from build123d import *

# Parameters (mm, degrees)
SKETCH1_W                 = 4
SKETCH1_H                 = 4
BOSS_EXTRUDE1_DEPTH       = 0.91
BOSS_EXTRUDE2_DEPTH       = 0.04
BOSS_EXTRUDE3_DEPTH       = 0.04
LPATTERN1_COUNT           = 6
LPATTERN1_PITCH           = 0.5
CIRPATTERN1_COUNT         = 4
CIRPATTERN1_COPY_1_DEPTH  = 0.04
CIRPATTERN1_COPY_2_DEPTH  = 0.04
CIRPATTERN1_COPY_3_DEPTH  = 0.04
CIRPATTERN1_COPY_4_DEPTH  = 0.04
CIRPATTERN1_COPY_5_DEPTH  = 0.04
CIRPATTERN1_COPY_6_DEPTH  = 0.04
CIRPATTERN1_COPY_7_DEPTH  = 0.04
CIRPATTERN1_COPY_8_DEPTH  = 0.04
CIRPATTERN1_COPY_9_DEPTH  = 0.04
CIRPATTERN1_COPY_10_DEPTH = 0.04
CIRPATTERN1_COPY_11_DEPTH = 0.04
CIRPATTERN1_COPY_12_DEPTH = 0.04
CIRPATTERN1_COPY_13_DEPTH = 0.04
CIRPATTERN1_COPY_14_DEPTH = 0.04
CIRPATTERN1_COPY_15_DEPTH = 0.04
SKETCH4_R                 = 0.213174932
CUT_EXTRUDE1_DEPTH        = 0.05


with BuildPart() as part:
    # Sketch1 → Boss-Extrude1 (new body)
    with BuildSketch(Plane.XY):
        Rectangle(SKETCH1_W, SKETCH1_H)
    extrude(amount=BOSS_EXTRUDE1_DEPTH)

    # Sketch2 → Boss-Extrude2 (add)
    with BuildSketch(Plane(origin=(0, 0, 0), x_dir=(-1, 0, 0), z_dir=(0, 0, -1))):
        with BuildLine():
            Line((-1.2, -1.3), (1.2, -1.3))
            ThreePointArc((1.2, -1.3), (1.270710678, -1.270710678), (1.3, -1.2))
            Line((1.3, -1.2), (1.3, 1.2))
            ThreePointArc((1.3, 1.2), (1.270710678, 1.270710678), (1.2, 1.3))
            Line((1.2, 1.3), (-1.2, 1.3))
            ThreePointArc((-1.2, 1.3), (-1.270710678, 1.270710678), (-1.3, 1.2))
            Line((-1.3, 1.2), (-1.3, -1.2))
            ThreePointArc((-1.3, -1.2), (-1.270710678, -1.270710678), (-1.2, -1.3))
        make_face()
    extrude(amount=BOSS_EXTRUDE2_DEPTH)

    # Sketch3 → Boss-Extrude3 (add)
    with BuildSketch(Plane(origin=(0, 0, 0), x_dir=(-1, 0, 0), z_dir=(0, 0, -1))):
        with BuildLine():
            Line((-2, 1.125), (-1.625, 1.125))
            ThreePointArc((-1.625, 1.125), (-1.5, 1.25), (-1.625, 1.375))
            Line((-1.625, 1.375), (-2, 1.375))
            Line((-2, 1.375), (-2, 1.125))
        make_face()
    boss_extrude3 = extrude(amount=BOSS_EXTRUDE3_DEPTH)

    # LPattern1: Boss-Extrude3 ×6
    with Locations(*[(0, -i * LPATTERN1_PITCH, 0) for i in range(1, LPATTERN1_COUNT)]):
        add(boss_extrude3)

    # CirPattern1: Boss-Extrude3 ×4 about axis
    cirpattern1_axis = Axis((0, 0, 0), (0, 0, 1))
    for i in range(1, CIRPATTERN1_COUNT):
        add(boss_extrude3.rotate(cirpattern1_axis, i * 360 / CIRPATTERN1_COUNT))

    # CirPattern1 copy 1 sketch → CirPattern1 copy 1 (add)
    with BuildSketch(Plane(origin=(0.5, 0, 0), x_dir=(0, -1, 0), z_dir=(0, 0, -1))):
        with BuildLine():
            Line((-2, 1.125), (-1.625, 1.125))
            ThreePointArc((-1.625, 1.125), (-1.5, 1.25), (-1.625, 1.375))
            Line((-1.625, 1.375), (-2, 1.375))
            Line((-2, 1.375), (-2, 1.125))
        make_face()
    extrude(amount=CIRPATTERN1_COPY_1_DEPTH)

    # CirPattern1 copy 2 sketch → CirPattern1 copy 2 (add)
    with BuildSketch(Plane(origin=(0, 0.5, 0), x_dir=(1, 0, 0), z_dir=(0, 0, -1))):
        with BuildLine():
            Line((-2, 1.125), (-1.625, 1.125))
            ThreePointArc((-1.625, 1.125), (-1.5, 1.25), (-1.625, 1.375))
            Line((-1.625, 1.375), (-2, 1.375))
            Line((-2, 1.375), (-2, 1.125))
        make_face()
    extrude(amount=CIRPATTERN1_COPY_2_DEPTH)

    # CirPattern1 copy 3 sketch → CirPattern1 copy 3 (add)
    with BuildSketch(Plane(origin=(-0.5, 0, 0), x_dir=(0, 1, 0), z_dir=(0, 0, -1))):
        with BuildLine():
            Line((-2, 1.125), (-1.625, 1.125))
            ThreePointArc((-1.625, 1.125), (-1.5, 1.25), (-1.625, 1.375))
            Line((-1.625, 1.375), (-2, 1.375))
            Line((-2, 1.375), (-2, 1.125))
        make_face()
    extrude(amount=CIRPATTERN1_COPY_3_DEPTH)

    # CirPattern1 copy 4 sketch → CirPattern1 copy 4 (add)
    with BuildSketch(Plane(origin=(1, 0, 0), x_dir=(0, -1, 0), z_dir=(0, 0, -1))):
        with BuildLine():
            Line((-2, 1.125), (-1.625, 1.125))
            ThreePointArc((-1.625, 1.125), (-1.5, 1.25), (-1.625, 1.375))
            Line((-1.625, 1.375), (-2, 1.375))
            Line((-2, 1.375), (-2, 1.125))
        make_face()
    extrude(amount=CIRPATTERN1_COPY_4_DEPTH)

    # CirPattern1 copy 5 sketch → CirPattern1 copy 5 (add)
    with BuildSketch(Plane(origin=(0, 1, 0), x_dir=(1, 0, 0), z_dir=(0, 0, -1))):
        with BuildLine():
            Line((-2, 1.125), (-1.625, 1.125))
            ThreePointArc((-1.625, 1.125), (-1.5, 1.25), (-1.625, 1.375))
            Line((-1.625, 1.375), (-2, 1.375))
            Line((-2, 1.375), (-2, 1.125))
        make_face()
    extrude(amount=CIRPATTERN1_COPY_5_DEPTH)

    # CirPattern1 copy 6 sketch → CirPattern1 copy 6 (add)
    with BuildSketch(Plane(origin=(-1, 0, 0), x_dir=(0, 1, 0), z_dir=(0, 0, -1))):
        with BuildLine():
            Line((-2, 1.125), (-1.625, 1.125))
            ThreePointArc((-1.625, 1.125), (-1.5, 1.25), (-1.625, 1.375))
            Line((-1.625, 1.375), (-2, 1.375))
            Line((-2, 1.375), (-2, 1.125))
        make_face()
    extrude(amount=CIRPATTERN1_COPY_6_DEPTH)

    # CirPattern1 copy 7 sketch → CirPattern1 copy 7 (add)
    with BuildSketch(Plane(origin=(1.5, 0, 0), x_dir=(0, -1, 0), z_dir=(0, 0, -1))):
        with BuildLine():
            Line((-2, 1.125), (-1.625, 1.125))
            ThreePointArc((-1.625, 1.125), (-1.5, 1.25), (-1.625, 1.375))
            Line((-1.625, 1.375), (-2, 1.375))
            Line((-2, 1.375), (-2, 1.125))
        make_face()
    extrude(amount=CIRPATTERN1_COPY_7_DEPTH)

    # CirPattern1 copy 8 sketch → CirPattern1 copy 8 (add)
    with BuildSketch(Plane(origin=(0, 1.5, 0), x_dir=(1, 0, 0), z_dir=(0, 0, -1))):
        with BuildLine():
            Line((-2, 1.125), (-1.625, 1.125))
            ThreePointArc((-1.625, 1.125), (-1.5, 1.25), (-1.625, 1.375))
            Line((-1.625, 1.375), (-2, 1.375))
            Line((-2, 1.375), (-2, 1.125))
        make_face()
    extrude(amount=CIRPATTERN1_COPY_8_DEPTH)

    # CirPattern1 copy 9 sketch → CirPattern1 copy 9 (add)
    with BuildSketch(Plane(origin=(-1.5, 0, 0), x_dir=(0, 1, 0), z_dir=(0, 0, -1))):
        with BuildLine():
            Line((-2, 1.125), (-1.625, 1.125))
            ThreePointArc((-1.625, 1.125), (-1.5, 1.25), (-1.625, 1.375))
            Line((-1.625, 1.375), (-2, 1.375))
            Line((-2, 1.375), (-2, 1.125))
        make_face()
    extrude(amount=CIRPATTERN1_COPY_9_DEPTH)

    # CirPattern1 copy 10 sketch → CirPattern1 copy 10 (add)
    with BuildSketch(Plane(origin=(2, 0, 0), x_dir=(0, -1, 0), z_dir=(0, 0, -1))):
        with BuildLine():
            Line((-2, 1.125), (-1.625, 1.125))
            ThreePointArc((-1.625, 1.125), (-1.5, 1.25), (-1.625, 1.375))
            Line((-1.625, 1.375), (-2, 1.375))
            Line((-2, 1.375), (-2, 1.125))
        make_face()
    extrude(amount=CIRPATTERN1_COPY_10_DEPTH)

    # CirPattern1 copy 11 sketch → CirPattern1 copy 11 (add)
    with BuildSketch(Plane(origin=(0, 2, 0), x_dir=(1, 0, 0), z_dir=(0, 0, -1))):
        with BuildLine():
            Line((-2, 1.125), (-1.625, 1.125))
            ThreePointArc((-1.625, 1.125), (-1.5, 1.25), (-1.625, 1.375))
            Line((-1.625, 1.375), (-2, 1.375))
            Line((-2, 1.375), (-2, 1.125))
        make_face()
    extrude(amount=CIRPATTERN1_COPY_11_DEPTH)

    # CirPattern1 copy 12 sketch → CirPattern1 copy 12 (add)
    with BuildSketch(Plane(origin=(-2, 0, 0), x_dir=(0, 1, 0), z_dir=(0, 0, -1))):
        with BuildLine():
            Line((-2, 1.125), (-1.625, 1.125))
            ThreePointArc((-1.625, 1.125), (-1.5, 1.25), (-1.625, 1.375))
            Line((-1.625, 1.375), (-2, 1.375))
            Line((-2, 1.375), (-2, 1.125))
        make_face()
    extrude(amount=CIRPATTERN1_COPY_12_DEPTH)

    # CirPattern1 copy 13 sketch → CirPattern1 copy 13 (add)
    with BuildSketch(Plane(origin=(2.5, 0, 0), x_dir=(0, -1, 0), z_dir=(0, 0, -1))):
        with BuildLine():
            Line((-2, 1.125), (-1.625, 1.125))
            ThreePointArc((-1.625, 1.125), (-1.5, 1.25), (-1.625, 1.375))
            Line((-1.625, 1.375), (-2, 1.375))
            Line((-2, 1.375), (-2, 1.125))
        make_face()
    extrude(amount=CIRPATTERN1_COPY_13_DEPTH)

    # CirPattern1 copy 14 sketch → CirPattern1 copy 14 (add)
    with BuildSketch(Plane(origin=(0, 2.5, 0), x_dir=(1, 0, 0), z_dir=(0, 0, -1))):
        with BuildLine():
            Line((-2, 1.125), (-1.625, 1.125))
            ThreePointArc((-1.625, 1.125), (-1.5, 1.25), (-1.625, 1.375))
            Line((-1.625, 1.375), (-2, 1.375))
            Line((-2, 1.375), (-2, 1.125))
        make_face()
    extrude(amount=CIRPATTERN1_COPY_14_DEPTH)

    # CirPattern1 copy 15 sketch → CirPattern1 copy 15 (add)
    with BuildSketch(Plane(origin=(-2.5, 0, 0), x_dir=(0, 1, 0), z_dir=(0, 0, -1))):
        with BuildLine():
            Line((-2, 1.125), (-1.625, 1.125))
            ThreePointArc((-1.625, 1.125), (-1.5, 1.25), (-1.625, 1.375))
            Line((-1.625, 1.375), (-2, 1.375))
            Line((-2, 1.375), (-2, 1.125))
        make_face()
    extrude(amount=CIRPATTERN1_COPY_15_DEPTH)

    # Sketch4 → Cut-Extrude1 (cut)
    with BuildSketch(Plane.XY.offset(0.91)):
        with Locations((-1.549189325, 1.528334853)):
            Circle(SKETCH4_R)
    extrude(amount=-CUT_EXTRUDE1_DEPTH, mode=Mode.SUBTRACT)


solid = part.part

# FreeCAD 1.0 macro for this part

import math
import FreeCAD as App
import Part
import Sketcher

V = App.Vector


def add_polygon(sketch, points):
    """Adds a closed chain of lines whose ends are joined by coincident constraints."""
    first, n = sketch.GeometryCount, len(points)
    for a, b in zip(points, points[1:] + points[:1]):
        sketch.addGeometry(Part.LineSegment(App.Vector(*a, 0), App.Vector(*b, 0)), False)
    for i in range(n):
        sketch.addConstraint(Sketcher.Constraint("Coincident", first + i, 2, first + (i + 1) % n, 1))

doc = App.newDocument("Part")
params = doc.addObject("Spreadsheet::Sheet", "Params")
for row, (alias, value) in enumerate([
    ("sketch1_width", "4 mm"),
    ("pad1_length", "0.91 mm"),
    ("sketch2_radius", "0.1 mm"),
    ("sketch2_width", "2.4 mm"),
    ("pad2_length", "0.04 mm"),
    ("pad3_length", "0.04 mm"),
    ("linearpattern_pitch", "0.5 mm"),
    ("pad4_length", "0.04 mm"),
    ("pad5_length", "0.04 mm"),
    ("pad6_length", "0.04 mm"),
    ("pad7_length", "0.04 mm"),
    ("pad8_length", "0.04 mm"),
    ("pad9_length", "0.04 mm"),
    ("pad10_length", "0.04 mm"),
    ("pad11_length", "0.04 mm"),
    ("pad12_length", "0.04 mm"),
    ("pad13_length", "0.04 mm"),
    ("pad14_length", "0.04 mm"),
    ("pad15_length", "0.04 mm"),
    ("pad16_length", "0.04 mm"),
    ("pad17_length", "0.04 mm"),
    ("pad18_length", "0.04 mm"),
    ("pocket1_length", "0.05 mm"),
], start=1):
    params.set(f"A{row}", alias)
    params.set(f"B{row}", "=" + value)
    params.setAlias(f"B{row}", alias)

body = doc.addObject("PartDesign::Body", "Body")

# Sketch on XY plane
sketch1 = doc.addObject("Sketcher::SketchObject", "Sketch")
body.addObject(sketch1)
sketch1.AttachmentSupport = (doc.XY_Plane, [""])
sketch1.MapMode = "FlatFace"
add_polygon(sketch1, [(-2, 2), (-2, -2), (2, -2), (2, 2)])  # lines 0-3
sketch1.addConstraint([
    Sketcher.Constraint("Vertical", 0),
    Sketcher.Constraint("Horizontal", 1),
    Sketcher.Constraint("Vertical", 2),
    Sketcher.Constraint("Horizontal", 3),
    Sketcher.Constraint("Symmetric", 0, 2, 2, 2, -1, 1),
    Sketcher.Constraint("Equal", 3, 0),
    Sketcher.Constraint("DistanceX", 1, 1, 1, 2, 4.0),
])
sketch1.setExpression("Constraints[10]", "Params.sketch1_width")
pad1 = doc.addObject("PartDesign::Pad", "Pad")
body.addObject(pad1)
pad1.Profile = sketch1
pad1.setExpression("Length", "Params.pad1_length")

# Sketch on XY plane
sketch2 = doc.addObject("Sketcher::SketchObject", "Sketch001")
body.addObject(sketch2)
sketch2.AttachmentSupport = (doc.XY_Plane, [""])
sketch2.MapMode = "FlatFace"
sketch2.addGeometry([
    Part.LineSegment(V(1.2, -1.3, 0), V(-1.2, -1.3, 0)),  # 0
    Part.ArcOfCircle(Part.Circle(V(-1.2, -1.2, 0), V(0, 0, 1), 0.1), math.radians(180), math.radians(270)),  # 1
    Part.LineSegment(V(-1.3, -1.2, 0), V(-1.3, 1.2, 0)),  # 2
    Part.ArcOfCircle(Part.Circle(V(-1.2, 1.2, 0), V(0, 0, 1), 0.1), math.radians(90), math.radians(180)),  # 3
    Part.LineSegment(V(-1.2, 1.3, 0), V(1.2, 1.3, 0)),  # 4
    Part.ArcOfCircle(Part.Circle(V(1.2, 1.2, 0), V(0, 0, 1), 0.1), math.radians(0), math.radians(90)),  # 5
    Part.LineSegment(V(1.3, 1.2, 0), V(1.3, -1.2, 0)),  # 6
    Part.ArcOfCircle(Part.Circle(V(1.2, -1.2, 0), V(0, 0, 1), 0.1), math.radians(-90), math.radians(0)),  # 7
], False)
sketch2.addConstraint([
    Sketcher.Constraint("Tangent", 0, 2, 1, 2),
    Sketcher.Constraint("Tangent", 1, 1, 2, 1),
    Sketcher.Constraint("Tangent", 2, 2, 3, 2),
    Sketcher.Constraint("Tangent", 3, 1, 4, 1),
    Sketcher.Constraint("Tangent", 4, 2, 5, 2),
    Sketcher.Constraint("Tangent", 5, 1, 6, 1),
    Sketcher.Constraint("Tangent", 6, 2, 7, 2),
    Sketcher.Constraint("Tangent", 7, 1, 0, 1),
    Sketcher.Constraint("Horizontal", 0),
    Sketcher.Constraint("Vertical", 2),
    Sketcher.Constraint("Horizontal", 4),
    Sketcher.Constraint("Vertical", 6),
    Sketcher.Constraint("Equal", 1, 3),
    Sketcher.Constraint("Equal", 3, 5),
    Sketcher.Constraint("Equal", 5, 7),
    Sketcher.Constraint("Symmetric", 1, 3, 5, 3, -1, 1),
    Sketcher.Constraint("Equal", 4, 2),
    Sketcher.Constraint("Radius", 1, 0.1),
    Sketcher.Constraint("DistanceX", 0, 2, 0, 1, 2.4),
])
sketch2.setExpression("Constraints[17]", "Params.sketch2_radius")
sketch2.setExpression("Constraints[18]", "Params.sketch2_width")
pad2 = doc.addObject("PartDesign::Pad", "Pad001")
body.addObject(pad2)
pad2.Profile = sketch2
pad2.setExpression("Length", "Params.pad2_length")
pad2.Reversed = True

# Sketch on XY plane
sketch3 = doc.addObject("Sketcher::SketchObject", "Sketch002")
body.addObject(sketch3)
sketch3.AttachmentSupport = (doc.XY_Plane, [""])
sketch3.MapMode = "FlatFace"
sketch3.addGeometry([
    Part.LineSegment(V(2, 1.125, 0), V(1.625, 1.125, 0)),
    Part.ArcOfCircle(Part.Circle(V(1.625, 1.25, 0), V(0, 0, 1), 0.125), math.radians(90), math.radians(270)),
    Part.LineSegment(V(1.625, 1.375, 0), V(2, 1.375, 0)),
    Part.LineSegment(V(2, 1.375, 0), V(2, 1.125, 0)),
], False)
sketch3.addConstraint([
    Sketcher.Constraint("Tangent", 0, 2, 1, 2),
    Sketcher.Constraint("Tangent", 1, 1, 2, 1),
    Sketcher.Constraint("Coincident", 2, 2, 3, 1),
    Sketcher.Constraint("Coincident", 3, 2, 0, 1),
    Sketcher.Constraint("Horizontal", 0),
    Sketcher.Constraint("Horizontal", 2),
    Sketcher.Constraint("Vertical", 3),
    Sketcher.Constraint("DistanceX", -1, 1, 2, 2, 2.0),
    Sketcher.Constraint("Radius", 1, 0.125),
    Sketcher.Constraint("DistanceX", 0, 2, 0, 1, 0.375),
    Sketcher.Constraint("DistanceY", -1, 1, 1, 3, 1.25),
])
pad3 = doc.addObject("PartDesign::Pad", "Pad002")
body.addObject(pad3)
pad3.Profile = sketch3
pad3.setExpression("Length", "Params.pad3_length")
pad3.Reversed = True
doc.recompute()

linearpattern = doc.addObject("PartDesign::LinearPattern", "LinearPattern")
body.addObject(linearpattern)
linearpattern.Originals = [pad3]
linearpattern.Direction = (doc.Y_Axis, [""])
linearpattern.Mode = "offset"
linearpattern.setExpression("Offset", "Params.linearpattern_pitch")
linearpattern.Occurrences = 6
linearpattern.Reversed = True
body.Tip = linearpattern
doc.recompute()

polarpattern = doc.addObject("PartDesign::PolarPattern", "PolarPattern")
body.addObject(polarpattern)
polarpattern.Originals = [pad3]
polarpattern.Axis = (doc.Z_Axis, [""])
polarpattern.Angle = 360
polarpattern.Occurrences = 4
body.Tip = polarpattern

# Sketch on XY plane
sketch4 = doc.addObject("Sketcher::SketchObject", "Sketch003")
body.addObject(sketch4)
sketch4.AttachmentSupport = (doc.XY_Plane, [""])
sketch4.MapMode = "FlatFace"
sketch4.addGeometry([
    Part.LineSegment(V(-0.625, 2, 0), V(-0.625, 1.625, 0)),
    Part.ArcOfCircle(Part.Circle(V(-0.75, 1.625, 0), V(0, 0, 1), 0.125), math.radians(180), math.radians(360)),
    Part.LineSegment(V(-0.875, 1.625, 0), V(-0.875, 2, 0)),
    Part.LineSegment(V(-0.875, 2, 0), V(-0.625, 2, 0)),
], False)
sketch4.addConstraint([
    Sketcher.Constraint("Tangent", 0, 2, 1, 2),
    Sketcher.Constraint("Tangent", 1, 1, 2, 1),
    Sketcher.Constraint("Coincident", 2, 2, 3, 1),
    Sketcher.Constraint("Coincident", 3, 2, 0, 1),
    Sketcher.Constraint("Vertical", 0),
    Sketcher.Constraint("Vertical", 2),
    Sketcher.Constraint("Horizontal", 3),
    Sketcher.Constraint("DistanceY", -1, 1, 2, 2, 2.0),
    Sketcher.Constraint("Radius", 1, 0.125),
    Sketcher.Constraint("DistanceY", 0, 2, 0, 1, 0.375),
    Sketcher.Constraint("DistanceX", 1, 3, -1, 1, 0.75),
])
pad4 = doc.addObject("PartDesign::Pad", "Pad003")
body.addObject(pad4)
pad4.Profile = sketch4
pad4.setExpression("Length", "Params.pad4_length")
pad4.Reversed = True

# Sketch on XY plane
sketch5 = doc.addObject("Sketcher::SketchObject", "Sketch004")
body.addObject(sketch5)
sketch5.AttachmentSupport = (doc.XY_Plane, [""])
sketch5.MapMode = "FlatFace"
sketch5.addGeometry([
    Part.LineSegment(V(-2, -0.625, 0), V(-1.625, -0.625, 0)),
    Part.ArcOfCircle(Part.Circle(V(-1.625, -0.75, 0), V(0, 0, 1), 0.125), math.radians(-90), math.radians(90)),
    Part.LineSegment(V(-1.625, -0.875, 0), V(-2, -0.875, 0)),
    Part.LineSegment(V(-2, -0.875, 0), V(-2, -0.625, 0)),
], False)
sketch5.addConstraint([
    Sketcher.Constraint("Tangent", 0, 2, 1, 2),
    Sketcher.Constraint("Tangent", 1, 1, 2, 1),
    Sketcher.Constraint("Coincident", 2, 2, 3, 1),
    Sketcher.Constraint("Coincident", 3, 2, 0, 1),
    Sketcher.Constraint("Horizontal", 0),
    Sketcher.Constraint("Horizontal", 2),
    Sketcher.Constraint("Vertical", 3),
    Sketcher.Constraint("DistanceX", 2, 2, -1, 1, 2.0),
    Sketcher.Constraint("Radius", 1, 0.125),
    Sketcher.Constraint("DistanceX", 0, 1, 0, 2, 0.375),
    Sketcher.Constraint("DistanceY", 1, 3, -1, 1, 0.75),
])
pad5 = doc.addObject("PartDesign::Pad", "Pad004")
body.addObject(pad5)
pad5.Profile = sketch5
pad5.setExpression("Length", "Params.pad5_length")
pad5.Reversed = True

# Sketch on XY plane
sketch6 = doc.addObject("Sketcher::SketchObject", "Sketch005")
body.addObject(sketch6)
sketch6.AttachmentSupport = (doc.XY_Plane, [""])
sketch6.MapMode = "FlatFace"
sketch6.addGeometry([
    Part.LineSegment(V(0.625, -2, 0), V(0.625, -1.625, 0)),
    Part.ArcOfCircle(Part.Circle(V(0.75, -1.625, 0), V(0, 0, 1), 0.125), math.radians(0), math.radians(180)),
    Part.LineSegment(V(0.875, -1.625, 0), V(0.875, -2, 0)),
    Part.LineSegment(V(0.875, -2, 0), V(0.625, -2, 0)),
], False)
sketch6.addConstraint([
    Sketcher.Constraint("Tangent", 0, 2, 1, 2),
    Sketcher.Constraint("Tangent", 1, 1, 2, 1),
    Sketcher.Constraint("Coincident", 2, 2, 3, 1),
    Sketcher.Constraint("Coincident", 3, 2, 0, 1),
    Sketcher.Constraint("Vertical", 0),
    Sketcher.Constraint("Vertical", 2),
    Sketcher.Constraint("Horizontal", 3),
    Sketcher.Constraint("DistanceY", 2, 2, -1, 1, 2.0),
    Sketcher.Constraint("Radius", 1, 0.125),
    Sketcher.Constraint("DistanceY", 0, 1, 0, 2, 0.375),
    Sketcher.Constraint("DistanceX", -1, 1, 1, 3, 0.75),
])
pad6 = doc.addObject("PartDesign::Pad", "Pad005")
body.addObject(pad6)
pad6.Profile = sketch6
pad6.setExpression("Length", "Params.pad6_length")
pad6.Reversed = True

# Sketch on XY plane
sketch7 = doc.addObject("Sketcher::SketchObject", "Sketch006")
body.addObject(sketch7)
sketch7.AttachmentSupport = (doc.XY_Plane, [""])
sketch7.MapMode = "FlatFace"
sketch7.addGeometry([
    Part.LineSegment(V(-0.125, 2, 0), V(-0.125, 1.625, 0)),
    Part.ArcOfCircle(Part.Circle(V(-0.25, 1.625, 0), V(0, 0, 1), 0.125), math.radians(180), math.radians(360)),
    Part.LineSegment(V(-0.375, 1.625, 0), V(-0.375, 2, 0)),
    Part.LineSegment(V(-0.375, 2, 0), V(-0.125, 2, 0)),
], False)
sketch7.addConstraint([
    Sketcher.Constraint("Tangent", 0, 2, 1, 2),
    Sketcher.Constraint("Tangent", 1, 1, 2, 1),
    Sketcher.Constraint("Coincident", 2, 2, 3, 1),
    Sketcher.Constraint("Coincident", 3, 2, 0, 1),
    Sketcher.Constraint("Vertical", 0),
    Sketcher.Constraint("Vertical", 2),
    Sketcher.Constraint("Horizontal", 3),
    Sketcher.Constraint("DistanceY", -1, 1, 2, 2, 2.0),
    Sketcher.Constraint("Radius", 1, 0.125),
    Sketcher.Constraint("DistanceY", 0, 2, 0, 1, 0.375),
    Sketcher.Constraint("DistanceX", 1, 3, -1, 1, 0.25),
])
pad7 = doc.addObject("PartDesign::Pad", "Pad006")
body.addObject(pad7)
pad7.Profile = sketch7
pad7.setExpression("Length", "Params.pad7_length")
pad7.Reversed = True

# Sketch on XY plane
sketch8 = doc.addObject("Sketcher::SketchObject", "Sketch007")
body.addObject(sketch8)
sketch8.AttachmentSupport = (doc.XY_Plane, [""])
sketch8.MapMode = "FlatFace"
sketch8.addGeometry([
    Part.LineSegment(V(-2, -0.125, 0), V(-1.625, -0.125, 0)),
    Part.ArcOfCircle(Part.Circle(V(-1.625, -0.25, 0), V(0, 0, 1), 0.125), math.radians(-90), math.radians(90)),
    Part.LineSegment(V(-1.625, -0.375, 0), V(-2, -0.375, 0)),
    Part.LineSegment(V(-2, -0.375, 0), V(-2, -0.125, 0)),
], False)
sketch8.addConstraint([
    Sketcher.Constraint("Tangent", 0, 2, 1, 2),
    Sketcher.Constraint("Tangent", 1, 1, 2, 1),
    Sketcher.Constraint("Coincident", 2, 2, 3, 1),
    Sketcher.Constraint("Coincident", 3, 2, 0, 1),
    Sketcher.Constraint("Horizontal", 0),
    Sketcher.Constraint("Horizontal", 2),
    Sketcher.Constraint("Vertical", 3),
    Sketcher.Constraint("DistanceX", 2, 2, -1, 1, 2.0),
    Sketcher.Constraint("Radius", 1, 0.125),
    Sketcher.Constraint("DistanceX", 0, 1, 0, 2, 0.375),
    Sketcher.Constraint("DistanceY", 1, 3, -1, 1, 0.25),
])
pad8 = doc.addObject("PartDesign::Pad", "Pad007")
body.addObject(pad8)
pad8.Profile = sketch8
pad8.setExpression("Length", "Params.pad8_length")
pad8.Reversed = True

# Sketch on XY plane
sketch9 = doc.addObject("Sketcher::SketchObject", "Sketch008")
body.addObject(sketch9)
sketch9.AttachmentSupport = (doc.XY_Plane, [""])
sketch9.MapMode = "FlatFace"
sketch9.addGeometry([
    Part.LineSegment(V(0.125, -2, 0), V(0.125, -1.625, 0)),
    Part.ArcOfCircle(Part.Circle(V(0.25, -1.625, 0), V(0, 0, 1), 0.125), math.radians(0), math.radians(180)),
    Part.LineSegment(V(0.375, -1.625, 0), V(0.375, -2, 0)),
    Part.LineSegment(V(0.375, -2, 0), V(0.125, -2, 0)),
], False)
sketch9.addConstraint([
    Sketcher.Constraint("Tangent", 0, 2, 1, 2),
    Sketcher.Constraint("Tangent", 1, 1, 2, 1),
    Sketcher.Constraint("Coincident", 2, 2, 3, 1),
    Sketcher.Constraint("Coincident", 3, 2, 0, 1),
    Sketcher.Constraint("Vertical", 0),
    Sketcher.Constraint("Vertical", 2),
    Sketcher.Constraint("Horizontal", 3),
    Sketcher.Constraint("DistanceY", 2, 2, -1, 1, 2.0),
    Sketcher.Constraint("Radius", 1, 0.125),
    Sketcher.Constraint("DistanceY", 0, 1, 0, 2, 0.375),
    Sketcher.Constraint("DistanceX", -1, 1, 1, 3, 0.25),
])
pad9 = doc.addObject("PartDesign::Pad", "Pad008")
body.addObject(pad9)
pad9.Profile = sketch9
pad9.setExpression("Length", "Params.pad9_length")
pad9.Reversed = True

# Sketch on XY plane
sketch10 = doc.addObject("Sketcher::SketchObject", "Sketch009")
body.addObject(sketch10)
sketch10.AttachmentSupport = (doc.XY_Plane, [""])
sketch10.MapMode = "FlatFace"
sketch10.addGeometry([
    Part.LineSegment(V(0.375, 2, 0), V(0.375, 1.625, 0)),
    Part.ArcOfCircle(Part.Circle(V(0.25, 1.625, 0), V(0, 0, 1), 0.125), math.radians(180), math.radians(360)),
    Part.LineSegment(V(0.125, 1.625, 0), V(0.125, 2, 0)),
    Part.LineSegment(V(0.125, 2, 0), V(0.375, 2, 0)),
], False)
sketch10.addConstraint([
    Sketcher.Constraint("Tangent", 0, 2, 1, 2),
    Sketcher.Constraint("Tangent", 1, 1, 2, 1),
    Sketcher.Constraint("Coincident", 2, 2, 3, 1),
    Sketcher.Constraint("Coincident", 3, 2, 0, 1),
    Sketcher.Constraint("Vertical", 0),
    Sketcher.Constraint("Vertical", 2),
    Sketcher.Constraint("Horizontal", 3),
    Sketcher.Constraint("DistanceY", -1, 1, 2, 2, 2.0),
    Sketcher.Constraint("Radius", 1, 0.125),
    Sketcher.Constraint("DistanceY", 0, 2, 0, 1, 0.375),
    Sketcher.Constraint("DistanceX", -1, 1, 1, 3, 0.25),
])
pad10 = doc.addObject("PartDesign::Pad", "Pad009")
body.addObject(pad10)
pad10.Profile = sketch10
pad10.setExpression("Length", "Params.pad10_length")
pad10.Reversed = True

# Sketch on XY plane
sketch11 = doc.addObject("Sketcher::SketchObject", "Sketch010")
body.addObject(sketch11)
sketch11.AttachmentSupport = (doc.XY_Plane, [""])
sketch11.MapMode = "FlatFace"
sketch11.addGeometry([
    Part.LineSegment(V(-2, 0.375, 0), V(-1.625, 0.375, 0)),
    Part.ArcOfCircle(Part.Circle(V(-1.625, 0.25, 0), V(0, 0, 1), 0.125), math.radians(-90), math.radians(90)),
    Part.LineSegment(V(-1.625, 0.125, 0), V(-2, 0.125, 0)),
    Part.LineSegment(V(-2, 0.125, 0), V(-2, 0.375, 0)),
], False)
sketch11.addConstraint([
    Sketcher.Constraint("Tangent", 0, 2, 1, 2),
    Sketcher.Constraint("Tangent", 1, 1, 2, 1),
    Sketcher.Constraint("Coincident", 2, 2, 3, 1),
    Sketcher.Constraint("Coincident", 3, 2, 0, 1),
    Sketcher.Constraint("Horizontal", 0),
    Sketcher.Constraint("Horizontal", 2),
    Sketcher.Constraint("Vertical", 3),
    Sketcher.Constraint("DistanceX", 2, 2, -1, 1, 2.0),
    Sketcher.Constraint("Radius", 1, 0.125),
    Sketcher.Constraint("DistanceX", 0, 1, 0, 2, 0.375),
    Sketcher.Constraint("DistanceY", -1, 1, 1, 3, 0.25),
])
pad11 = doc.addObject("PartDesign::Pad", "Pad010")
body.addObject(pad11)
pad11.Profile = sketch11
pad11.setExpression("Length", "Params.pad11_length")
pad11.Reversed = True

# Sketch on XY plane
sketch12 = doc.addObject("Sketcher::SketchObject", "Sketch011")
body.addObject(sketch12)
sketch12.AttachmentSupport = (doc.XY_Plane, [""])
sketch12.MapMode = "FlatFace"
sketch12.addGeometry([
    Part.LineSegment(V(-0.375, -2, 0), V(-0.375, -1.625, 0)),
    Part.ArcOfCircle(Part.Circle(V(-0.25, -1.625, 0), V(0, 0, 1), 0.125), math.radians(0), math.radians(180)),
    Part.LineSegment(V(-0.125, -1.625, 0), V(-0.125, -2, 0)),
    Part.LineSegment(V(-0.125, -2, 0), V(-0.375, -2, 0)),
], False)
sketch12.addConstraint([
    Sketcher.Constraint("Tangent", 0, 2, 1, 2),
    Sketcher.Constraint("Tangent", 1, 1, 2, 1),
    Sketcher.Constraint("Coincident", 2, 2, 3, 1),
    Sketcher.Constraint("Coincident", 3, 2, 0, 1),
    Sketcher.Constraint("Vertical", 0),
    Sketcher.Constraint("Vertical", 2),
    Sketcher.Constraint("Horizontal", 3),
    Sketcher.Constraint("DistanceY", 2, 2, -1, 1, 2.0),
    Sketcher.Constraint("Radius", 1, 0.125),
    Sketcher.Constraint("DistanceY", 0, 1, 0, 2, 0.375),
    Sketcher.Constraint("DistanceX", 1, 3, -1, 1, 0.25),
])
pad12 = doc.addObject("PartDesign::Pad", "Pad011")
body.addObject(pad12)
pad12.Profile = sketch12
pad12.setExpression("Length", "Params.pad12_length")
pad12.Reversed = True

# Sketch on XY plane
sketch13 = doc.addObject("Sketcher::SketchObject", "Sketch012")
body.addObject(sketch13)
sketch13.AttachmentSupport = (doc.XY_Plane, [""])
sketch13.MapMode = "FlatFace"
sketch13.addGeometry([
    Part.LineSegment(V(0.875, 2, 0), V(0.875, 1.625, 0)),
    Part.ArcOfCircle(Part.Circle(V(0.75, 1.625, 0), V(0, 0, 1), 0.125), math.radians(180), math.radians(360)),
    Part.LineSegment(V(0.625, 1.625, 0), V(0.625, 2, 0)),
    Part.LineSegment(V(0.625, 2, 0), V(0.875, 2, 0)),
], False)
sketch13.addConstraint([
    Sketcher.Constraint("Tangent", 0, 2, 1, 2),
    Sketcher.Constraint("Tangent", 1, 1, 2, 1),
    Sketcher.Constraint("Coincident", 2, 2, 3, 1),
    Sketcher.Constraint("Coincident", 3, 2, 0, 1),
    Sketcher.Constraint("Vertical", 0),
    Sketcher.Constraint("Vertical", 2),
    Sketcher.Constraint("Horizontal", 3),
    Sketcher.Constraint("DistanceY", -1, 1, 2, 2, 2.0),
    Sketcher.Constraint("Radius", 1, 0.125),
    Sketcher.Constraint("DistanceY", 0, 2, 0, 1, 0.375),
    Sketcher.Constraint("DistanceX", -1, 1, 1, 3, 0.75),
])
pad13 = doc.addObject("PartDesign::Pad", "Pad012")
body.addObject(pad13)
pad13.Profile = sketch13
pad13.setExpression("Length", "Params.pad13_length")
pad13.Reversed = True

# Sketch on XY plane
sketch14 = doc.addObject("Sketcher::SketchObject", "Sketch013")
body.addObject(sketch14)
sketch14.AttachmentSupport = (doc.XY_Plane, [""])
sketch14.MapMode = "FlatFace"
sketch14.addGeometry([
    Part.LineSegment(V(-2, 0.875, 0), V(-1.625, 0.875, 0)),
    Part.ArcOfCircle(Part.Circle(V(-1.625, 0.75, 0), V(0, 0, 1), 0.125), math.radians(-90), math.radians(90)),
    Part.LineSegment(V(-1.625, 0.625, 0), V(-2, 0.625, 0)),
    Part.LineSegment(V(-2, 0.625, 0), V(-2, 0.875, 0)),
], False)
sketch14.addConstraint([
    Sketcher.Constraint("Tangent", 0, 2, 1, 2),
    Sketcher.Constraint("Tangent", 1, 1, 2, 1),
    Sketcher.Constraint("Coincident", 2, 2, 3, 1),
    Sketcher.Constraint("Coincident", 3, 2, 0, 1),
    Sketcher.Constraint("Horizontal", 0),
    Sketcher.Constraint("Horizontal", 2),
    Sketcher.Constraint("Vertical", 3),
    Sketcher.Constraint("DistanceX", 2, 2, -1, 1, 2.0),
    Sketcher.Constraint("Radius", 1, 0.125),
    Sketcher.Constraint("DistanceX", 0, 1, 0, 2, 0.375),
    Sketcher.Constraint("DistanceY", -1, 1, 1, 3, 0.75),
])
pad14 = doc.addObject("PartDesign::Pad", "Pad013")
body.addObject(pad14)
pad14.Profile = sketch14
pad14.setExpression("Length", "Params.pad14_length")
pad14.Reversed = True

# Sketch on XY plane
sketch15 = doc.addObject("Sketcher::SketchObject", "Sketch014")
body.addObject(sketch15)
sketch15.AttachmentSupport = (doc.XY_Plane, [""])
sketch15.MapMode = "FlatFace"
sketch15.addGeometry([
    Part.LineSegment(V(-0.875, -2, 0), V(-0.875, -1.625, 0)),
    Part.ArcOfCircle(Part.Circle(V(-0.75, -1.625, 0), V(0, 0, 1), 0.125), math.radians(0), math.radians(180)),
    Part.LineSegment(V(-0.625, -1.625, 0), V(-0.625, -2, 0)),
    Part.LineSegment(V(-0.625, -2, 0), V(-0.875, -2, 0)),
], False)
sketch15.addConstraint([
    Sketcher.Constraint("Tangent", 0, 2, 1, 2),
    Sketcher.Constraint("Tangent", 1, 1, 2, 1),
    Sketcher.Constraint("Coincident", 2, 2, 3, 1),
    Sketcher.Constraint("Coincident", 3, 2, 0, 1),
    Sketcher.Constraint("Vertical", 0),
    Sketcher.Constraint("Vertical", 2),
    Sketcher.Constraint("Horizontal", 3),
    Sketcher.Constraint("DistanceY", 2, 2, -1, 1, 2.0),
    Sketcher.Constraint("Radius", 1, 0.125),
    Sketcher.Constraint("DistanceY", 0, 1, 0, 2, 0.375),
    Sketcher.Constraint("DistanceX", 1, 3, -1, 1, 0.75),
])
pad15 = doc.addObject("PartDesign::Pad", "Pad014")
body.addObject(pad15)
pad15.Profile = sketch15
pad15.setExpression("Length", "Params.pad15_length")
pad15.Reversed = True

# Sketch on XY plane
sketch16 = doc.addObject("Sketcher::SketchObject", "Sketch015")
body.addObject(sketch16)
sketch16.AttachmentSupport = (doc.XY_Plane, [""])
sketch16.MapMode = "FlatFace"
sketch16.addGeometry([
    Part.LineSegment(V(1.375, 2, 0), V(1.375, 1.625, 0)),
    Part.ArcOfCircle(Part.Circle(V(1.25, 1.625, 0), V(0, 0, 1), 0.125), math.radians(180), math.radians(360)),
    Part.LineSegment(V(1.125, 1.625, 0), V(1.125, 2, 0)),
    Part.LineSegment(V(1.125, 2, 0), V(1.375, 2, 0)),
], False)
sketch16.addConstraint([
    Sketcher.Constraint("Tangent", 0, 2, 1, 2),
    Sketcher.Constraint("Tangent", 1, 1, 2, 1),
    Sketcher.Constraint("Coincident", 2, 2, 3, 1),
    Sketcher.Constraint("Coincident", 3, 2, 0, 1),
    Sketcher.Constraint("Vertical", 0),
    Sketcher.Constraint("Vertical", 2),
    Sketcher.Constraint("Horizontal", 3),
    Sketcher.Constraint("DistanceY", -1, 1, 2, 2, 2.0),
    Sketcher.Constraint("Radius", 1, 0.125),
    Sketcher.Constraint("DistanceY", 0, 2, 0, 1, 0.375),
    Sketcher.Constraint("DistanceX", -1, 1, 1, 3, 1.25),
])
pad16 = doc.addObject("PartDesign::Pad", "Pad015")
body.addObject(pad16)
pad16.Profile = sketch16
pad16.setExpression("Length", "Params.pad16_length")
pad16.Reversed = True

# Sketch on XY plane
sketch17 = doc.addObject("Sketcher::SketchObject", "Sketch016")
body.addObject(sketch17)
sketch17.AttachmentSupport = (doc.XY_Plane, [""])
sketch17.MapMode = "FlatFace"
sketch17.addGeometry([
    Part.LineSegment(V(-2, 1.375, 0), V(-1.625, 1.375, 0)),
    Part.ArcOfCircle(Part.Circle(V(-1.625, 1.25, 0), V(0, 0, 1), 0.125), math.radians(-90), math.radians(90)),
    Part.LineSegment(V(-1.625, 1.125, 0), V(-2, 1.125, 0)),
    Part.LineSegment(V(-2, 1.125, 0), V(-2, 1.375, 0)),
], False)
sketch17.addConstraint([
    Sketcher.Constraint("Tangent", 0, 2, 1, 2),
    Sketcher.Constraint("Tangent", 1, 1, 2, 1),
    Sketcher.Constraint("Coincident", 2, 2, 3, 1),
    Sketcher.Constraint("Coincident", 3, 2, 0, 1),
    Sketcher.Constraint("Horizontal", 0),
    Sketcher.Constraint("Horizontal", 2),
    Sketcher.Constraint("Vertical", 3),
    Sketcher.Constraint("DistanceX", 2, 2, -1, 1, 2.0),
    Sketcher.Constraint("Radius", 1, 0.125),
    Sketcher.Constraint("DistanceX", 0, 1, 0, 2, 0.375),
    Sketcher.Constraint("DistanceY", -1, 1, 1, 3, 1.25),
])
pad17 = doc.addObject("PartDesign::Pad", "Pad016")
body.addObject(pad17)
pad17.Profile = sketch17
pad17.setExpression("Length", "Params.pad17_length")
pad17.Reversed = True

# Sketch on XY plane
sketch18 = doc.addObject("Sketcher::SketchObject", "Sketch017")
body.addObject(sketch18)
sketch18.AttachmentSupport = (doc.XY_Plane, [""])
sketch18.MapMode = "FlatFace"
sketch18.addGeometry([
    Part.LineSegment(V(-1.375, -2, 0), V(-1.375, -1.625, 0)),
    Part.ArcOfCircle(Part.Circle(V(-1.25, -1.625, 0), V(0, 0, 1), 0.125), math.radians(0), math.radians(180)),
    Part.LineSegment(V(-1.125, -1.625, 0), V(-1.125, -2, 0)),
    Part.LineSegment(V(-1.125, -2, 0), V(-1.375, -2, 0)),
], False)
sketch18.addConstraint([
    Sketcher.Constraint("Tangent", 0, 2, 1, 2),
    Sketcher.Constraint("Tangent", 1, 1, 2, 1),
    Sketcher.Constraint("Coincident", 2, 2, 3, 1),
    Sketcher.Constraint("Coincident", 3, 2, 0, 1),
    Sketcher.Constraint("Vertical", 0),
    Sketcher.Constraint("Vertical", 2),
    Sketcher.Constraint("Horizontal", 3),
    Sketcher.Constraint("DistanceY", 2, 2, -1, 1, 2.0),
    Sketcher.Constraint("Radius", 1, 0.125),
    Sketcher.Constraint("DistanceY", 0, 1, 0, 2, 0.375),
    Sketcher.Constraint("DistanceX", 1, 3, -1, 1, 1.25),
])
pad18 = doc.addObject("PartDesign::Pad", "Pad017")
body.addObject(pad18)
pad18.Profile = sketch18
pad18.setExpression("Length", "Params.pad18_length")
pad18.Reversed = True

# Sketch on XY plane
sketch19 = doc.addObject("Sketcher::SketchObject", "Sketch018")
body.addObject(sketch19)
sketch19.AttachmentSupport = (doc.XY_Plane, [""])
sketch19.MapMode = "FlatFace"
sketch19.AttachmentOffset = App.Placement(V(0, 0, 0.91), App.Rotation())
sketch19.addGeometry(Part.Circle(V(-1.549189, 1.528335, 0), V(0, 0, 1), 0.213175), False)
sketch19.addConstraint([
    Sketcher.Constraint("Diameter", 0, 0.42635),
    Sketcher.Constraint("DistanceX", 0, 3, -1, 1, 1.549189),
    Sketcher.Constraint("DistanceY", -1, 1, 0, 3, 1.528335),
])
pocket1 = doc.addObject("PartDesign::Pocket", "Pocket")
body.addObject(pocket1)
pocket1.Profile = sketch19
pocket1.setExpression("Length", "Params.pocket1_length")

doc.recompute()
